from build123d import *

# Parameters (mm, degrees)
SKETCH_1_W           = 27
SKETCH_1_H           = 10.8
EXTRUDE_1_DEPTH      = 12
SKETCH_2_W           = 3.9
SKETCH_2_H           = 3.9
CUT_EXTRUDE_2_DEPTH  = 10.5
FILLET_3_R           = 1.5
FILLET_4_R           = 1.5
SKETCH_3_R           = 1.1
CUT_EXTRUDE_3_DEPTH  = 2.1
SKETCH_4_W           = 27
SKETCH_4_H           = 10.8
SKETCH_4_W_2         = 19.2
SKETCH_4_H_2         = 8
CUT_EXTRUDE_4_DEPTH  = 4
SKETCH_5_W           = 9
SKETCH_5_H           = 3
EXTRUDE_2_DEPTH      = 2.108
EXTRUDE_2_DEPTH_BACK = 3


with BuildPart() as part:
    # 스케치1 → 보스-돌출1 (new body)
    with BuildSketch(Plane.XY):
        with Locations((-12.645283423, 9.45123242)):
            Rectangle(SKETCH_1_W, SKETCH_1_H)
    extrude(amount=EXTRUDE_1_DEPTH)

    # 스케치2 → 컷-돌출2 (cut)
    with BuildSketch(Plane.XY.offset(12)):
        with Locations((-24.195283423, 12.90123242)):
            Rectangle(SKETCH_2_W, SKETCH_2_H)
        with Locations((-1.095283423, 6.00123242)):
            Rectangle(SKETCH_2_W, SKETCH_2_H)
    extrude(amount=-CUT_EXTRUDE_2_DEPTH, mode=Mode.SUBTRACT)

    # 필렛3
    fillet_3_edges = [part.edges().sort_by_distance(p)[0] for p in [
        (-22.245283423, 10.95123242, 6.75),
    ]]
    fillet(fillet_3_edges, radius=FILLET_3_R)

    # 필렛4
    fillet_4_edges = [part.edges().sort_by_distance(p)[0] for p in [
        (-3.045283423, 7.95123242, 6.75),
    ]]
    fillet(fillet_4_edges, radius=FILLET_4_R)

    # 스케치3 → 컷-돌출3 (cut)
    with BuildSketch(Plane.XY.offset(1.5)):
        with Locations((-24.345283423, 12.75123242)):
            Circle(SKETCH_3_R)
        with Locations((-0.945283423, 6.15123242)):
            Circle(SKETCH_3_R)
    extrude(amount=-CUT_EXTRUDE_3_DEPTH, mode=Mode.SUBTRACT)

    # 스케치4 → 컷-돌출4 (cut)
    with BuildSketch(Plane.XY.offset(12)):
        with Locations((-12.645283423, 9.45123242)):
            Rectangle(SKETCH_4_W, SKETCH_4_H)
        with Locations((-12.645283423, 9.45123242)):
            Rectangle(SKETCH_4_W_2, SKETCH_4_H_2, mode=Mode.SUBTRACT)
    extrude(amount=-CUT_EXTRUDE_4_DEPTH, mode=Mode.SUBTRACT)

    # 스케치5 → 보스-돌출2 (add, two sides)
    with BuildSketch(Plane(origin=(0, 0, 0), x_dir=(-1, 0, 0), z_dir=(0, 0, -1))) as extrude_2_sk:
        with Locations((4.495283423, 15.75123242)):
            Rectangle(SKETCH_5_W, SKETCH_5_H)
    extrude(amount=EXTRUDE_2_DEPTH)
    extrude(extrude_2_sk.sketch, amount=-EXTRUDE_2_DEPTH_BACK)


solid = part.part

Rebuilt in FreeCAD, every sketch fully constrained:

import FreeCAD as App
import Part
import Sketcher
Q = App.Units.Quantity


def edges_at(feature, points):
    """Names of the edges that pass closest to the given points."""
    edges = feature.Shape.Edges
    near = lambda p: min(range(len(edges)), key=lambda i: edges[i].distToShape(Part.Vertex(*p))[0])
    return sorted({f"Edge{near(p) + 1}" for p in points})

doc = App.newDocument("Part")
params = doc.addObject("Spreadsheet::Sheet", "Params")
for row, (alias, value) in enumerate([
    ("sketch1_width", "27 mm"),
    ("sketch1_height", "10.8 mm"),
    ("pad1_length", "12 mm"),
    ("sketch2_width", "3.9 mm"),
    ("pocket1_length", "10.5 mm"),
    ("fillet_radius", "1.5 mm"),
    ("fillet2_radius", "1.5 mm"),
    ("sketch3_diameter", "2.2 mm"),
    ("pocket2_length", "2.1 mm"),
    ("sketch4_width", "27 mm"),
    ("sketch4_height", "8 mm"),
    ("sketch4_width2", "19.2 mm"),
    ("sketch4_height2", "10.8 mm"),
    ("pocket3_length", "4 mm"),
    ("sketch5_width", "9 mm"),
    ("sketch5_height", "3 mm"),
    ("pad2_length", "2.108 mm"),
    ("pad2_length2", "3 mm"),
], start=1):
    params.set(f"A{row}", alias)
    params.set(f"B{row}", "=" + value)
    params.setAlias(f"B{row}", alias)

body = doc.addObject("PartDesign::Body", "Body")

sketch1 = body.newObject("Sketcher::SketchObject", "Sketch")
sketch1.AttachmentSupport = (doc.getObject("XY_Plane"), [""])
sketch1.MapMode = "FlatFace"
sketch1.addGeometry([
    Part.LineSegment(App.Vector(-26, 15, 0), App.Vector(-26, 4, 0)),
    Part.LineSegment(App.Vector(-26, 4, 0), App.Vector(1, 4, 0)),
    Part.LineSegment(App.Vector(1, 4, 0), App.Vector(1, 15, 0)),
    Part.LineSegment(App.Vector(1, 15, 0), App.Vector(-26, 15, 0)),
], False)
sketch1.addConstraint([
    Sketcher.Constraint("Coincident", 0, 2, 1, 1),
    Sketcher.Constraint("Coincident", 1, 2, 2, 1),
    Sketcher.Constraint("Coincident", 2, 2, 3, 1),
    Sketcher.Constraint("Coincident", 3, 2, 0, 1),
    Sketcher.Constraint("Vertical", 0),
    Sketcher.Constraint("Horizontal", 1),
    Sketcher.Constraint("Vertical", 2),
    Sketcher.Constraint("Horizontal", 3),
    Sketcher.Constraint("DistanceX", 1, 1, 1, 2, Q("27 mm")),
    Sketcher.Constraint("DistanceY", 0, 2, 0, 1, Q("10.8 mm")),
    Sketcher.Constraint("DistanceX", 0, 2, -1, 1, Q("26.145283 mm")),
    Sketcher.Constraint("DistanceY", -1, 1, 0, 2, Q("4.051232 mm")),
])
sketch1.setExpression("Constraints[8]", "Params.sketch1_width")
sketch1.setExpression("Constraints[9]", "Params.sketch1_height")
pad1 = body.newObject("PartDesign::Pad", "Pad")
pad1.Profile = sketch1
pad1.setExpression("Length", "Params.pad1_length")

sketch2 = body.newObject("Sketcher::SketchObject", "Sketch001")
sketch2.AttachmentSupport = (doc.getObject("XY_Plane"), [""])
sketch2.MapMode = "FlatFace"
sketch2.AttachmentOffset = App.Placement(App.Vector(0, 0, 12), App.Rotation())
sketch2.addGeometry([
    Part.LineSegment(App.Vector(-26.1, 14.9, 0), App.Vector(-26.1, 11, 0)),
    Part.LineSegment(App.Vector(-26.1, 11, 0), App.Vector(-22.2, 11, 0)),
    Part.LineSegment(App.Vector(-22.2, 11, 0), App.Vector(-22.2, 14.9, 0)),
    Part.LineSegment(App.Vector(-22.2, 14.9, 0), App.Vector(-26.1, 14.9, 0)),
    Part.LineSegment(App.Vector(-3, 8, 0), App.Vector(-3, 4.1, 0)),
    Part.LineSegment(App.Vector(-3, 4.1, 0), App.Vector(0.9, 4.1, 0)),
    Part.LineSegment(App.Vector(0.9, 4.1, 0), App.Vector(0.9, 8, 0)),
    Part.LineSegment(App.Vector(0.9, 8, 0), App.Vector(-3, 8, 0)),
], False)
sketch2.addConstraint([
    Sketcher.Constraint("Coincident", 0, 2, 1, 1),
    Sketcher.Constraint("Coincident", 1, 2, 2, 1),
    Sketcher.Constraint("Coincident", 2, 2, 3, 1),
    Sketcher.Constraint("Coincident", 3, 2, 0, 1),
    Sketcher.Constraint("Coincident", 4, 2, 5, 1),
    Sketcher.Constraint("Coincident", 5, 2, 6, 1),
    Sketcher.Constraint("Coincident", 6, 2, 7, 1),
    Sketcher.Constraint("Coincident", 7, 2, 4, 1),
    Sketcher.Constraint("Vertical", 0),
    Sketcher.Constraint("Horizontal", 1),
    Sketcher.Constraint("Vertical", 2),
    Sketcher.Constraint("Horizontal", 3),
    Sketcher.Constraint("Vertical", 4),
    Sketcher.Constraint("Horizontal", 5),
    Sketcher.Constraint("Vertical", 6),
    Sketcher.Constraint("Horizontal", 7),
    Sketcher.Constraint("Equal", 3, 5),
    Sketcher.Constraint("Equal", 7, 0),
    Sketcher.Constraint("Equal", 2, 4),
    Sketcher.Constraint("DistanceX", 1, 1, 1, 2, Q("3.9 mm")),
    Sketcher.Constraint("DistanceX", 0, 2, 5, 2, Q("27 mm")),
    Sketcher.Constraint("DistanceY", 6, 2, 1, 2, Q("3 mm")),
    Sketcher.Constraint("DistanceX", 0, 2, -1, 1, Q("26.145283 mm")),
    Sketcher.Constraint("DistanceY", -1, 1, 0, 2, Q("10.951232 mm")),
])
sketch2.setExpression("Constraints[19]", "Params.sketch2_width")
pocket1 = body.newObject("PartDesign::Pocket", "Pocket")
pocket1.Profile = sketch2
pocket1.setExpression("Length", "Params.pocket1_length")
doc.recompute()

fillet = body.newObject("PartDesign::Fillet", "Fillet")
fillet.Base = (pocket1, edges_at(pocket1, [(-22.245, 10.951, 6.75)]))
fillet.setExpression("Radius", "Params.fillet_radius")
doc.recompute()

fillet2 = body.newObject("PartDesign::Fillet", "Fillet001")
fillet2.Base = (fillet, edges_at(fillet, [(-3.045, 7.951, 6.75)]))
fillet2.setExpression("Radius", "Params.fillet2_radius")

sketch3 = body.newObject("Sketcher::SketchObject", "Sketch002")
sketch3.AttachmentSupport = (doc.getObject("XY_Plane"), [""])
sketch3.MapMode = "FlatFace"
sketch3.AttachmentOffset = App.Placement(App.Vector(0, 0, 1.5), App.Rotation())
sketch3.addGeometry([
    Part.Circle(App.Vector(-24.3, 12.8, 0), App.Vector(0, 0, 1), 1.1),
    Part.Circle(App.Vector(-0.9, 6.2, 0), App.Vector(0, 0, 1), 1.1),
], False)
sketch3.addConstraint([
    Sketcher.Constraint("Equal", 0, 1),
    Sketcher.Constraint("Diameter", 0, Q("2.2 mm")),
    Sketcher.Constraint("DistanceX", 0, 3, 1, 3, Q("23.4 mm")),
    Sketcher.Constraint("DistanceY", 1, 3, 0, 3, Q("6.6 mm")),
    Sketcher.Constraint("DistanceX", 0, 3, -1, 1, Q("24.345283 mm")),
    Sketcher.Constraint("DistanceY", -1, 1, 0, 3, Q("12.751232 mm")),
])
sketch3.setExpression("Constraints[1]", "Params.sketch3_diameter")
pocket2 = body.newObject("PartDesign::Pocket", "Pocket001")
pocket2.Profile = sketch3
pocket2.setExpression("Length", "Params.pocket2_length")

sketch4 = body.newObject("Sketcher::SketchObject", "Sketch003")
sketch4.AttachmentSupport = (doc.getObject("XY_Plane"), [""])
sketch4.MapMode = "FlatFace"
sketch4.AttachmentOffset = App.Placement(App.Vector(0, 0, 12), App.Rotation())
sketch4.addGeometry([
    Part.LineSegment(App.Vector(-26, 15, 0), App.Vector(-26, 4, 0)),
    Part.LineSegment(App.Vector(-26, 4, 0), App.Vector(1, 4, 0)),
    Part.LineSegment(App.Vector(1, 4, 0), App.Vector(1, 15, 0)),
    Part.LineSegment(App.Vector(1, 15, 0), App.Vector(-26, 15, 0)),
    Part.LineSegment(App.Vector(-3, 5, 0), App.Vector(-22, 5, 0)),
    Part.LineSegment(App.Vector(-22, 5, 0), App.Vector(-22, 13, 0)),
    Part.LineSegment(App.Vector(-22, 13, 0), App.Vector(-3, 13, 0)),
    Part.LineSegment(App.Vector(-3, 13, 0), App.Vector(-3, 5, 0)),
], False)
sketch4.addConstraint([
    Sketcher.Constraint("Coincident", 0, 2, 1, 1),
    Sketcher.Constraint("Coincident", 1, 2, 2, 1),
    Sketcher.Constraint("Coincident", 2, 2, 3, 1),
    Sketcher.Constraint("Coincident", 3, 2, 0, 1),
    Sketcher.Constraint("Coincident", 4, 2, 5, 1),
    Sketcher.Constraint("Coincident", 5, 2, 6, 1),
    Sketcher.Constraint("Coincident", 6, 2, 7, 1),
    Sketcher.Constraint("Coincident", 7, 2, 4, 1),
    Sketcher.Constraint("Vertical", 0),
    Sketcher.Constraint("Horizontal", 1),
    Sketcher.Constraint("Vertical", 2),
    Sketcher.Constraint("Horizontal", 3),
    Sketcher.Constraint("Horizontal", 4),
    Sketcher.Constraint("Vertical", 5),
    Sketcher.Constraint("Horizontal", 6),
    Sketcher.Constraint("Vertical", 7),
    Sketcher.Constraint("DistanceX", 1, 1, 1, 2, Q("27 mm")),
    Sketcher.Constraint("DistanceY", 5, 1, 5, 2, Q("8 mm")),
    Sketcher.Constraint("DistanceX", 4, 2, 4, 1, Q("19.2 mm")),
    Sketcher.Constraint("DistanceY", 0, 2, 0, 1, Q("10.8 mm")),
    Sketcher.Constraint("DistanceX", 0, 2, 4, 2, Q("3.9 mm")),
    Sketcher.Constraint("DistanceY", 0, 2, 4, 2, Q("1.4 mm")),
    Sketcher.Constraint("DistanceX", 0, 2, -1, 1, Q("26.145283 mm")),
    Sketcher.Constraint("DistanceY", -1, 1, 0, 2, Q("4.051232 mm")),
])
sketch4.setExpression("Constraints[16]", "Params.sketch4_width")
sketch4.setExpression("Constraints[17]", "Params.sketch4_height")
sketch4.setExpression("Constraints[18]", "Params.sketch4_width2")
sketch4.setExpression("Constraints[19]", "Params.sketch4_height2")
pocket3 = body.newObject("PartDesign::Pocket", "Pocket002")
pocket3.Profile = sketch4
pocket3.setExpression("Length", "Params.pocket3_length")

sketch5 = body.newObject("Sketcher::SketchObject", "Sketch004")
sketch5.AttachmentSupport = (doc.getObject("XY_Plane"), [""])
sketch5.MapMode = "FlatFace"
sketch5.addGeometry([
    Part.LineSegment(App.Vector(0, 17.3, 0), App.Vector(0, 14.3, 0)),
    Part.LineSegment(App.Vector(0, 14.3, 0), App.Vector(-9, 14.3, 0)),
    Part.LineSegment(App.Vector(-9, 14.3, 0), App.Vector(-9, 17.3, 0)),
    Part.LineSegment(App.Vector(-9, 17.3, 0), App.Vector(0, 17.3, 0)),
], False)
sketch5.addConstraint([
    Sketcher.Constraint("Coincident", 0, 2, 1, 1),
    Sketcher.Constraint("Coincident", 1, 2, 2, 1),
    Sketcher.Constraint("Coincident", 2, 2, 3, 1),
    Sketcher.Constraint("Coincident", 3, 2, 0, 1),
    Sketcher.Constraint("Vertical", 0),
    Sketcher.Constraint("Horizontal", 1),
    Sketcher.Constraint("Vertical", 2),
    Sketcher.Constraint("Horizontal", 3),
    Sketcher.Constraint("DistanceX", 1, 2, 1, 1, Q("9 mm")),
    Sketcher.Constraint("DistanceY", 0, 2, 0, 1, Q("3 mm")),
    Sketcher.Constraint("DistanceX", -1, 1, 0, 2, Q("0.004717 mm")),
    Sketcher.Constraint("DistanceY", -1, 1, 0, 2, Q("14.251232 mm")),
])
sketch5.setExpression("Constraints[8]", "Params.sketch5_width")
sketch5.setExpression("Constraints[9]", "Params.sketch5_height")
pad2 = body.newObject("PartDesign::Pad", "Pad001")
pad2.Profile = sketch5
pad2.Type = "TwoLengths"
pad2.setExpression("Length", "Params.pad2_length")
pad2.setExpression("Length2", "Params.pad2_length2")
pad2.Reversed = True

doc.recompute()
